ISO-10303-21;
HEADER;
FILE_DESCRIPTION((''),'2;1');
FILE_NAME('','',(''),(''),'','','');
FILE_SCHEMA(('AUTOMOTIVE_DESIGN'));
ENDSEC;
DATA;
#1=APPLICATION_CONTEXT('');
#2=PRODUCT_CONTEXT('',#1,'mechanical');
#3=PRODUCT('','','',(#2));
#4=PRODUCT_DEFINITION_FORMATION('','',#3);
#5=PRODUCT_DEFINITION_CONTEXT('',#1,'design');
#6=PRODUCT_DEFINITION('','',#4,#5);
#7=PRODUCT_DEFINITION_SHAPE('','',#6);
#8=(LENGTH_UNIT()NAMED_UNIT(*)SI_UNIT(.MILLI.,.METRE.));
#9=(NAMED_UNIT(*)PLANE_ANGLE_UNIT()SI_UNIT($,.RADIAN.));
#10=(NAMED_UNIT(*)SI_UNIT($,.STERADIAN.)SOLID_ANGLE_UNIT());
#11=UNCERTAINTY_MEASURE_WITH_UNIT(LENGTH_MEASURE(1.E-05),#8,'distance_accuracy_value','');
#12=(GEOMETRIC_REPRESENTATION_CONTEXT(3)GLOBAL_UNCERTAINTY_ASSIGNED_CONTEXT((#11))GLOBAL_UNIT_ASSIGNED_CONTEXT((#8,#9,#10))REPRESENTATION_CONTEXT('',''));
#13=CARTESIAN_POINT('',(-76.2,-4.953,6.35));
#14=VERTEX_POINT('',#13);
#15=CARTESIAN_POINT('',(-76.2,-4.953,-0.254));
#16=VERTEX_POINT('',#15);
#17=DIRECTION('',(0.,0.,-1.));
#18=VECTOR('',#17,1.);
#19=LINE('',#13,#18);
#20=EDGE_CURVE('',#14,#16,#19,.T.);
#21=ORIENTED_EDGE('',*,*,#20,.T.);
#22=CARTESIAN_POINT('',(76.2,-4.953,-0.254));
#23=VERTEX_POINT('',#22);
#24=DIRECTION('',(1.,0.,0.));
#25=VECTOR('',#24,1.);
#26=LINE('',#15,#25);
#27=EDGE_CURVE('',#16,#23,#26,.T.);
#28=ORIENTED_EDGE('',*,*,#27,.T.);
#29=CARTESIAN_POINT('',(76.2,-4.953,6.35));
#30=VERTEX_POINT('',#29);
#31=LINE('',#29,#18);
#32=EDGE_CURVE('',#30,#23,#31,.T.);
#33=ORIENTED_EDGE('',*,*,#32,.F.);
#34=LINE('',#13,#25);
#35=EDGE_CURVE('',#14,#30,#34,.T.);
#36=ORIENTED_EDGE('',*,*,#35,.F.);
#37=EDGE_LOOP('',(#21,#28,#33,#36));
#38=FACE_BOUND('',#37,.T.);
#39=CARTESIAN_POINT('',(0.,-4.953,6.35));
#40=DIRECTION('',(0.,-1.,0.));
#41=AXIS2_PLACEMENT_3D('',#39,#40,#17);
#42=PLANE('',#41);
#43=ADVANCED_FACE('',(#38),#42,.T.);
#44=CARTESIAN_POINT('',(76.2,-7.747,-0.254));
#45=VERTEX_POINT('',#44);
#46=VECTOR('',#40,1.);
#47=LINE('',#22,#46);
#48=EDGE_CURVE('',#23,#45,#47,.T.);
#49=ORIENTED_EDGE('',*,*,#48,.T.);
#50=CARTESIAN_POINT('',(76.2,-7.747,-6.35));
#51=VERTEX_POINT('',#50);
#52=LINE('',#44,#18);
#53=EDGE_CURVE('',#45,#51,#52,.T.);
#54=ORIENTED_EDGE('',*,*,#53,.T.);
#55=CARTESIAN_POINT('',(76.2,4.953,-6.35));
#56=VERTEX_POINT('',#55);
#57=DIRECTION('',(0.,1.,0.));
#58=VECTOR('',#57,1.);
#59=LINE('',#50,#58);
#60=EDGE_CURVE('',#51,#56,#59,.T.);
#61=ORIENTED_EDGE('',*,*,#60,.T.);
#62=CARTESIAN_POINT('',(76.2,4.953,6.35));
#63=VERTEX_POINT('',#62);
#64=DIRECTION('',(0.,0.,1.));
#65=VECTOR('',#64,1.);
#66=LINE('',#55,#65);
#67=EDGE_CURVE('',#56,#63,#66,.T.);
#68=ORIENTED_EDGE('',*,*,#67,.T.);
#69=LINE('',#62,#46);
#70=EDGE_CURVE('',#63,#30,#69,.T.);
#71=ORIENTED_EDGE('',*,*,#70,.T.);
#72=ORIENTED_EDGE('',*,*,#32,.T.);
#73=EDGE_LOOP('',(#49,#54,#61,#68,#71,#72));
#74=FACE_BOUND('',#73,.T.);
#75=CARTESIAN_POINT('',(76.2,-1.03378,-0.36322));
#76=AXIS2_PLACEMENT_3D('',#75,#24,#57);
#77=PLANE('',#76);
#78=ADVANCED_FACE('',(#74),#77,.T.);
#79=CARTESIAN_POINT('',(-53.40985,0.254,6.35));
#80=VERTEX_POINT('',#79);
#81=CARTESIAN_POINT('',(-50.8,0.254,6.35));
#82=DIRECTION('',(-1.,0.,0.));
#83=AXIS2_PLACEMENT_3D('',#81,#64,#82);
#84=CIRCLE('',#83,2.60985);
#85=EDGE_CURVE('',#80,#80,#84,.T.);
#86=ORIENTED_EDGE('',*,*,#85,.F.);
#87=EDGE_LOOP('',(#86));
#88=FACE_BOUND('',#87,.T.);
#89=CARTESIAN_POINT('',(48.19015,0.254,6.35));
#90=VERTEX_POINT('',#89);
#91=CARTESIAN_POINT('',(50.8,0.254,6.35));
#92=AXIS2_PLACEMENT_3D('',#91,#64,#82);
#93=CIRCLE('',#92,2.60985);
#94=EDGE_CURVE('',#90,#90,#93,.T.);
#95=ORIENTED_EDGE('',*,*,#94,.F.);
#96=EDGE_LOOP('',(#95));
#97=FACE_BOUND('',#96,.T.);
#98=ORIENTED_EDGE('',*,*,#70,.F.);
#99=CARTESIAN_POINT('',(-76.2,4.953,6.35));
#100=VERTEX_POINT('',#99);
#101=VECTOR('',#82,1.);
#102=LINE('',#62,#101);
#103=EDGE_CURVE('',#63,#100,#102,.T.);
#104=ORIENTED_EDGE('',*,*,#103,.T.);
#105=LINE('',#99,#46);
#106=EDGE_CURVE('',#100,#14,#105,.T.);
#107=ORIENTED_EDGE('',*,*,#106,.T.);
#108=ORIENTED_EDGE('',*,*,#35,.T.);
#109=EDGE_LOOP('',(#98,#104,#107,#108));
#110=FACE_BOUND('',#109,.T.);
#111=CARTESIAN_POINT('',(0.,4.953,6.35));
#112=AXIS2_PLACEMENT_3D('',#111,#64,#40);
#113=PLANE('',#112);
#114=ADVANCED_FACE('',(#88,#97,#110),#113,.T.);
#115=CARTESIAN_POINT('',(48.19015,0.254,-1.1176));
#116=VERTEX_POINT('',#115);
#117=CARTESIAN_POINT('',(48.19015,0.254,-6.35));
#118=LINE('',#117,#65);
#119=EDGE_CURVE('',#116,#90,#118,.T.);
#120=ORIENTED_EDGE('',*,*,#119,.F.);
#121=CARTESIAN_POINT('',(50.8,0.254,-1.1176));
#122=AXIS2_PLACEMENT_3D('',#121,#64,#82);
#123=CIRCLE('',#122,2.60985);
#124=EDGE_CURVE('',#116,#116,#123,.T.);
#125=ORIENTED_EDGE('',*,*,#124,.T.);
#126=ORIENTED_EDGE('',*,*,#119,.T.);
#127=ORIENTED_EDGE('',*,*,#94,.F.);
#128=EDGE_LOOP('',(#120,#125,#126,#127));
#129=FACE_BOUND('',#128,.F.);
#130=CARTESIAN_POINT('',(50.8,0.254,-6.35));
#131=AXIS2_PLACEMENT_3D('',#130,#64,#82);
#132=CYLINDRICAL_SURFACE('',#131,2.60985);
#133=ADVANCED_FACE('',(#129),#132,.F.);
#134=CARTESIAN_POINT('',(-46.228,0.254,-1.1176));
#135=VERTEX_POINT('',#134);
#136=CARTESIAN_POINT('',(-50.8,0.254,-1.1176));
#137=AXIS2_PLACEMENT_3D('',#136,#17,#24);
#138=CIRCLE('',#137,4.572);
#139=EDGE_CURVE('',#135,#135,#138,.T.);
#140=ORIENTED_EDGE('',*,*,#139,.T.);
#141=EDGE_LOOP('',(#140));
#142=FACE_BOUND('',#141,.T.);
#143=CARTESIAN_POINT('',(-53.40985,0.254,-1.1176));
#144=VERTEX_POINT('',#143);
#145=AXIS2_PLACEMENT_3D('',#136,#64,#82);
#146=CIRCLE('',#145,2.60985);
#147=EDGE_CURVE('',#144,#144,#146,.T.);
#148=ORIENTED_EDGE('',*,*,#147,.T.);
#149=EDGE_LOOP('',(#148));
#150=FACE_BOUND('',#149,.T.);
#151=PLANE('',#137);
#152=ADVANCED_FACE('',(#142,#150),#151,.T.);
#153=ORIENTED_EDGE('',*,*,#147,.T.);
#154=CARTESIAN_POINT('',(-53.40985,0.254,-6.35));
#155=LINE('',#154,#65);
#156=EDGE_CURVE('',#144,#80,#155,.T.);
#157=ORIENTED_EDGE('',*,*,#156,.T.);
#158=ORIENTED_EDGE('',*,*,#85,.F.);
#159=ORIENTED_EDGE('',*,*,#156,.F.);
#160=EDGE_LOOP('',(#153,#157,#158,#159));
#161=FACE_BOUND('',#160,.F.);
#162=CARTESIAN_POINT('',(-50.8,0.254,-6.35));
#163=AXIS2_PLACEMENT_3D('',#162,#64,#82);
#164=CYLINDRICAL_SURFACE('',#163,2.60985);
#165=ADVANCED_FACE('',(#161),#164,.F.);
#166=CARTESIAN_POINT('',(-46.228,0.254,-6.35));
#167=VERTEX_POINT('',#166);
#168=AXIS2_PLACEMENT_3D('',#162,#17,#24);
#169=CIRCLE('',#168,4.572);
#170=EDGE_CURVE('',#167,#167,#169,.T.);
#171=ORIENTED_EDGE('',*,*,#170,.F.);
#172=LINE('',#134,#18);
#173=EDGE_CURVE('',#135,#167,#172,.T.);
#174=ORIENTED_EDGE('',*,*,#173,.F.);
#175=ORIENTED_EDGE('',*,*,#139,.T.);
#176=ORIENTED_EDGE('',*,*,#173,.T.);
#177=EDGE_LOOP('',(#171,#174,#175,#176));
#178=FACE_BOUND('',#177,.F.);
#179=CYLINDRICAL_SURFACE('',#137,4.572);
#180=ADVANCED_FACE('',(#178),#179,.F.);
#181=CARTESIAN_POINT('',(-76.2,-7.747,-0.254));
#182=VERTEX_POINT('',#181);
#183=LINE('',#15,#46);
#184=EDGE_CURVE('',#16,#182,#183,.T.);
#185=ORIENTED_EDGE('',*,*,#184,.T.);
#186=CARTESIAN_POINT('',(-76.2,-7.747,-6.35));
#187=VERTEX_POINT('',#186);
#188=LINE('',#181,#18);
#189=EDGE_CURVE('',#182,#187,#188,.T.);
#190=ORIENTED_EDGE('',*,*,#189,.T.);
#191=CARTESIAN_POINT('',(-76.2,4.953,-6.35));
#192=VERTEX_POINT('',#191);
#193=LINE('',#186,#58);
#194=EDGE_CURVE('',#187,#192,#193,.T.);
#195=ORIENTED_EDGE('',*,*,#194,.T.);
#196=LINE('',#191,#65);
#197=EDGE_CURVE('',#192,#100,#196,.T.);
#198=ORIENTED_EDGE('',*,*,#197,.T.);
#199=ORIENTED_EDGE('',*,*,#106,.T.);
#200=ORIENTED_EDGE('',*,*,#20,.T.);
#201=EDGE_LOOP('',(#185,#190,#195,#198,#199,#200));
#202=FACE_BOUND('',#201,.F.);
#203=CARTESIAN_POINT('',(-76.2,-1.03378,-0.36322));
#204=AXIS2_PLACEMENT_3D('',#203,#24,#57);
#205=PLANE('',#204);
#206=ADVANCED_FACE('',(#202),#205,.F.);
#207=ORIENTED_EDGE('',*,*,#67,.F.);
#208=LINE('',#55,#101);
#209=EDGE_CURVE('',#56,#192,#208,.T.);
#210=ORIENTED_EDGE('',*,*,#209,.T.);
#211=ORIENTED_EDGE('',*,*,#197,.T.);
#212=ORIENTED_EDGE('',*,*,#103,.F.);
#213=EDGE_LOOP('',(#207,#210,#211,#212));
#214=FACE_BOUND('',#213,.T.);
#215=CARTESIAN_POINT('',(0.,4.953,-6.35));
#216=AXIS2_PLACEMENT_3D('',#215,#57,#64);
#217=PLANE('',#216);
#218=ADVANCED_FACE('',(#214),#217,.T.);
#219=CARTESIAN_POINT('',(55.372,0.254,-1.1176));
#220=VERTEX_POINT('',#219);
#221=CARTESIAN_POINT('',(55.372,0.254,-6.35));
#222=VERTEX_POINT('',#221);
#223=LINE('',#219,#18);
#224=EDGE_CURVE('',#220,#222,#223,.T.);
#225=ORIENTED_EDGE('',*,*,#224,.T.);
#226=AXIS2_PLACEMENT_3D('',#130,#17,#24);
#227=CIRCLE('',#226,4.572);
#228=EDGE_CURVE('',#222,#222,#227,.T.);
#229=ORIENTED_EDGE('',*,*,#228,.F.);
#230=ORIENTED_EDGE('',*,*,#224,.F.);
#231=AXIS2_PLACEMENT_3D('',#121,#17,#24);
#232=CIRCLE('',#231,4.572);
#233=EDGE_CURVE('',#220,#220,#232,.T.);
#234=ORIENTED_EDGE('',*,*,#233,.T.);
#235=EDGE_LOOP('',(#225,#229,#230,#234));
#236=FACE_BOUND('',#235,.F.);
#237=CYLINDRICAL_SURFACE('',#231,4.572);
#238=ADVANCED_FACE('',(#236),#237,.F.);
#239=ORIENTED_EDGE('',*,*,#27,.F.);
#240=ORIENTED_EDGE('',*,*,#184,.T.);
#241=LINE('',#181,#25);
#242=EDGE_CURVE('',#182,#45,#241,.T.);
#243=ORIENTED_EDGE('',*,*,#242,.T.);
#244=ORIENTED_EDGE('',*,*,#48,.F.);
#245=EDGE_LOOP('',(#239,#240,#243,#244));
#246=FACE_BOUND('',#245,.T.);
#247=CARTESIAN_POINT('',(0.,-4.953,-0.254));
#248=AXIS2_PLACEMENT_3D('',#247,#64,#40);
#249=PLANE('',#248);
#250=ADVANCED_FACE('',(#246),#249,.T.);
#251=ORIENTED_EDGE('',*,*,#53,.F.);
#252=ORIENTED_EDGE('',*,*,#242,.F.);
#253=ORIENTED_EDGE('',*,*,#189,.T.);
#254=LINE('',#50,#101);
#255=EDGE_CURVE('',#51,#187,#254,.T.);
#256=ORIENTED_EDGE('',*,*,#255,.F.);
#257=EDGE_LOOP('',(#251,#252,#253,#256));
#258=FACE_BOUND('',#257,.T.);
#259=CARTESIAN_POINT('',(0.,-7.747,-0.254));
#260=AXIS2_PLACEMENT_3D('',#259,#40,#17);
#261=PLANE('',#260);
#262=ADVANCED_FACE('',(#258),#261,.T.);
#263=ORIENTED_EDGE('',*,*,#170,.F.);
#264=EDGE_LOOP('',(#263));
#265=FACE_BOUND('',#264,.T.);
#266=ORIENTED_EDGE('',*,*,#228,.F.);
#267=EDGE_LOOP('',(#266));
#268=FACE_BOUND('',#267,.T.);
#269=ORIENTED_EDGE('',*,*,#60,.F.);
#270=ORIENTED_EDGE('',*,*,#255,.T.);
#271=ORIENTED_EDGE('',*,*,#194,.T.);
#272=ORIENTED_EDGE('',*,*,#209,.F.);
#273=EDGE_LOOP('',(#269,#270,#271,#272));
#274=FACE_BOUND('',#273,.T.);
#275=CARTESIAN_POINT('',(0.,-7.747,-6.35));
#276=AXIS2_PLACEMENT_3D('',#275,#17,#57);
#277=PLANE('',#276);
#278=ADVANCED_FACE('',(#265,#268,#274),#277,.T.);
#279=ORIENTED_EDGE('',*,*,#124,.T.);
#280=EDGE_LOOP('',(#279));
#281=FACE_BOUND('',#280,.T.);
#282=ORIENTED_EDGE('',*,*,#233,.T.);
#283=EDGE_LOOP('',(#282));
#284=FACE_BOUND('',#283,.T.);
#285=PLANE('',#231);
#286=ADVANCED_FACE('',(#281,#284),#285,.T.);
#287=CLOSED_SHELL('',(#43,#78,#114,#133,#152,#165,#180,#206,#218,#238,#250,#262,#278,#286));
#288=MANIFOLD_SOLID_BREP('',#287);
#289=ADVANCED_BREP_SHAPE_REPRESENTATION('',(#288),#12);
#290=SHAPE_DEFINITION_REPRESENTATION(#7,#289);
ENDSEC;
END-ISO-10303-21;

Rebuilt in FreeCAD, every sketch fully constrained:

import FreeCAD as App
import Part
import Sketcher
from FreeCAD import Vector
Q = App.Units.Quantity


def add_polygon(sketch, points):
    """Adds a closed chain of lines whose ends are joined by coincident constraints."""
    first, n = sketch.GeometryCount, len(points)
    for a, b in zip(points, points[1:] + points[:1]):
        sketch.addGeometry(Part.LineSegment(App.Vector(*a, 0), App.Vector(*b, 0)), False)
    for i in range(n):
        sketch.addConstraint(Sketcher.Constraint("Coincident", first + i, 2, first + (i + 1) % n, 1))

doc = App.newDocument("Part")
body = doc.addObject("PartDesign::Body", "Body")

# Sketch on YZ plane
sketch1 = body.newObject("Sketcher::SketchObject", "Sketch")
sketch1.AttachmentSupport = (doc.getObject("YZ_Plane"), [""])
sketch1.MapMode = "FlatFace"
add_polygon(sketch1, [(5, 6.3), (-5, 6.3), (-5, -0.3), (-7.7, -0.3), (-7.7, -6.3), (5, -6.3)])  # lines 0-5
sketch1.addConstraint([
    Sketcher.Constraint("Horizontal", 0),
    Sketcher.Constraint("Vertical", 1),
    Sketcher.Constraint("Horizontal", 2),
    Sketcher.Constraint("Vertical", 3),
    Sketcher.Constraint("Horizontal", 4),
    Sketcher.Constraint("Vertical", 5),
    Sketcher.Constraint("Symmetric", 0, 2, 4, 2, -1, 1),
    Sketcher.Constraint("Equal", 4, 5),
    Sketcher.Constraint("DistanceX", 4, 1, 4, 2, Q("0.5 in")),
    Sketcher.Constraint("DistanceX", 0, 2, 0, 1, Q("0.39 in")),
    Sketcher.Constraint("DistanceY", 1, 2, 1, 1, Q("0.26 in")),
])
pad1 = body.newObject("PartDesign::Pad", "Pad")
pad1.Profile = sketch1
pad1.Length = Q("6 in")
pad1.Midplane = True

# Sketch on XY plane
sketch2 = body.newObject("Sketcher::SketchObject", "Sketch001")
sketch2.AttachmentSupport = (doc.getObject("XY_Plane"), [""])
sketch2.MapMode = "FlatFace"
sketch2.AttachmentOffset = App.Placement(Vector(0, 0, -0.25 * 25.4), App.Rotation())
sketch2.addGeometry([
    Part.Circle(Vector(-50.8, 0.3, 0), Vector(0, 0, 1), 2.6),
    Part.Circle(Vector(50.8, 0.3, 0), Vector(0, 0, 1), 2.6),
], False)
sketch2.addConstraint([
    Sketcher.Constraint("Equal", 0, 1),
    Sketcher.Constraint("Symmetric", 0, 3, 1, 3, -2),
    Sketcher.Constraint("DistanceX", 0, 3, -1, 1, Q("2 in")),
    Sketcher.Constraint("Diameter", 0, Q("0.2055 in")),
    Sketcher.Constraint("DistanceY", -1, 1, 0, 3, Q("0.01 in")),
])
doc.recompute()
hole = body.newObject("PartDesign::Hole", "Hole")
hole.Profile = sketch2
hole.ThreadType = "None"
hole.Diameter = Q("0.2055 in")
hole.DepthType = "ThroughAll"
hole.HoleCutType = "Counterbore"
hole.HoleCutDiameter = Q("0.36 in")
hole.HoleCutDepth = Q("0.206 in")
hole.Reversed = True

doc.recompute()
